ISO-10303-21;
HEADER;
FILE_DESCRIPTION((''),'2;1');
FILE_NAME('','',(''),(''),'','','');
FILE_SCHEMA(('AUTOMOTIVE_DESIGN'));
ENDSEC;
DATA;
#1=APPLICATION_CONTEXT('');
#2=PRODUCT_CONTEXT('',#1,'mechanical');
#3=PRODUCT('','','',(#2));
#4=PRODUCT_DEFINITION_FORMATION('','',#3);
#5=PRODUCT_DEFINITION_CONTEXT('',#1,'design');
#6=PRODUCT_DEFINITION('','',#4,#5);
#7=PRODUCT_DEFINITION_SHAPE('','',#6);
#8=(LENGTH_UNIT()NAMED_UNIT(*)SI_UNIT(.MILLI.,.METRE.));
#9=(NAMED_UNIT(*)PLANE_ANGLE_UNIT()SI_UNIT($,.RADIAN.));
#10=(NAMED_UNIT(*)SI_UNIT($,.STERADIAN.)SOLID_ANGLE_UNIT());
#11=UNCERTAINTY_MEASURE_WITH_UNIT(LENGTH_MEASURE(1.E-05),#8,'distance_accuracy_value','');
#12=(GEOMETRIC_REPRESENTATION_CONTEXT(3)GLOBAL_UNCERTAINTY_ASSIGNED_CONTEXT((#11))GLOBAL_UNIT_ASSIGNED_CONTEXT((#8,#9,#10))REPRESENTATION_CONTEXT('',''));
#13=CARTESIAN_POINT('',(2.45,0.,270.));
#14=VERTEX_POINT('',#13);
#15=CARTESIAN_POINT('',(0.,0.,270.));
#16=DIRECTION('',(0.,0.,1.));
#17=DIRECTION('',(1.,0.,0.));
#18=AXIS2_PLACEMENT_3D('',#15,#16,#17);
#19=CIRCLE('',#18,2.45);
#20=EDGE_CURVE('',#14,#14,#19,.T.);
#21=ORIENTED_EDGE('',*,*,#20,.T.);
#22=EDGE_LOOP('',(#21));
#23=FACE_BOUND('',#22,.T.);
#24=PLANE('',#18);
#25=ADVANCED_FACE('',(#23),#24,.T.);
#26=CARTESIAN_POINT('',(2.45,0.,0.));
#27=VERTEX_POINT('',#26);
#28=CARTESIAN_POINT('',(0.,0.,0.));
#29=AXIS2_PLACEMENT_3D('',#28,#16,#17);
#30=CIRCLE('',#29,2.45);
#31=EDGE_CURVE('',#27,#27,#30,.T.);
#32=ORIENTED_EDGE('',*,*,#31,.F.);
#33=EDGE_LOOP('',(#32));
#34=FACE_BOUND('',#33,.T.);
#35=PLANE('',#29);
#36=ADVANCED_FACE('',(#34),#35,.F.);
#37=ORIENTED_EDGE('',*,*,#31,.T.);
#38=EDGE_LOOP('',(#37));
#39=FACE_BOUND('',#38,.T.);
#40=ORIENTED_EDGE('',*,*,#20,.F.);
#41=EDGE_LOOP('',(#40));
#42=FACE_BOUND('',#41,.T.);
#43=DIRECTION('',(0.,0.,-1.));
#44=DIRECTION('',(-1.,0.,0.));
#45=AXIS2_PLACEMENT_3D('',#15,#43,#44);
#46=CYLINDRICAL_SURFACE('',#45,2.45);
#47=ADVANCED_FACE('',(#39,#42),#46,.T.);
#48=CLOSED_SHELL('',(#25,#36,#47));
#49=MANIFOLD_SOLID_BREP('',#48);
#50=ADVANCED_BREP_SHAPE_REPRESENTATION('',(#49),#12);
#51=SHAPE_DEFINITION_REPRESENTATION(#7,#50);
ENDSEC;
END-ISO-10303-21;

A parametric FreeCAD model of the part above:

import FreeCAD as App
import Part
import Sketcher

V = App.Vector

doc = App.newDocument("Part")
params = doc.addObject("Spreadsheet::Sheet", "Params")
for row, (alias, value) in enumerate([
    ("sketch1_diameter", "4.9 mm"),
    ("pad1_length", "270 mm"),
], start=1):
    params.set(f"A{row}", alias)
    params.set(f"B{row}", "=" + value)
    params.setAlias(f"B{row}", alias)

body = doc.addObject("PartDesign::Body", "Body")

sketch1 = body.newObject("Sketcher::SketchObject", "Sketch")
sketch1.AttachmentSupport = (doc.getObject("XY_Plane"), [""])
sketch1.MapMode = "FlatFace"
sketch1.addGeometry(Part.Circle(V(0, 0, 0), V(0, 0, 1), 2.5), False)
sketch1.addConstraint(Sketcher.Constraint("Coincident", 0, 3, -1, 1))
sketch1.addConstraint(Sketcher.Constraint("Diameter", 0, 4.9))
sketch1.setExpression("Constraints[1]", "Params.sketch1_diameter")
pad1 = body.newObject("PartDesign::Pad", "Pad")
pad1.Profile = sketch1
pad1.setExpression("Length", "Params.pad1_length")

doc.recompute()
